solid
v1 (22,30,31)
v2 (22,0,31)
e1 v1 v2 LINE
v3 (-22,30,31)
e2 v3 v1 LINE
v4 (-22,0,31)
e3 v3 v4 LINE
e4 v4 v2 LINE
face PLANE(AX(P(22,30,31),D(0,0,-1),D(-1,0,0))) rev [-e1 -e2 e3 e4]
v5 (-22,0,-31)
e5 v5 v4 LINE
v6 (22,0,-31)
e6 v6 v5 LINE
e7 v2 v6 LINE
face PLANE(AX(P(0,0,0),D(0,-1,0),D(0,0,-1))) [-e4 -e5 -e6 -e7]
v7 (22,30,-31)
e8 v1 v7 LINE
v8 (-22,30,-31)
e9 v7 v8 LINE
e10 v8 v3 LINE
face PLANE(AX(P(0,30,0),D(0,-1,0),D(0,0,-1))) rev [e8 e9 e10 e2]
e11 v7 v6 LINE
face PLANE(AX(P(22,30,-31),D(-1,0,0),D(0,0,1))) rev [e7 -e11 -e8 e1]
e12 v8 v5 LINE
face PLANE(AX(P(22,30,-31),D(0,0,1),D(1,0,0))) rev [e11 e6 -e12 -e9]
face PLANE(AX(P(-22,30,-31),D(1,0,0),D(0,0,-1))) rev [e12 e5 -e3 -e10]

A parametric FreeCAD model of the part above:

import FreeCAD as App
import Part
import Sketcher
from FreeCAD import Vector
Q = App.Units.Quantity

doc = App.newDocument("Part")
body = doc.addObject("PartDesign::Body", "Body")

# Sketch on XZ plane
sketch1 = body.newObject("Sketcher::SketchObject", "Sketch")
sketch1.AttachmentSupport = (doc.getObject("XZ_Plane"), [""])
sketch1.MapMode = "FlatFace"
sketch1.addGeometry(Part.LineSegment(Vector(-22, -31, 0), Vector(-22, 31, 0)), False)
sketch1.addGeometry(Part.LineSegment(Vector(-22, 31, 0), Vector(22, 31, 0)), False)
sketch1.addGeometry(Part.LineSegment(Vector(22, 31, 0), Vector(22, -31, 0)), False)
sketch1.addGeometry(Part.LineSegment(Vector(22, -31, 0), Vector(-22, -31, 0)), False)
sketch1.addConstraint(Sketcher.Constraint("Coincident", 0, 2, 1, 1))
sketch1.addConstraint(Sketcher.Constraint("Coincident", 1, 2, 2, 1))
sketch1.addConstraint(Sketcher.Constraint("Coincident", 2, 2, 3, 1))
sketch1.addConstraint(Sketcher.Constraint("Coincident", 3, 2, 0, 1))
sketch1.addConstraint(Sketcher.Constraint("Vertical", 0))
sketch1.addConstraint(Sketcher.Constraint("Horizontal", 1))
sketch1.addConstraint(Sketcher.Constraint("Vertical", 2))
sketch1.addConstraint(Sketcher.Constraint("Horizontal", 3))
sketch1.addConstraint(Sketcher.Constraint("Symmetric", 0, 2, 2, 2, -1, 1))
sketch1.addConstraint(Sketcher.Constraint("DistanceX", 1, 1, 1, 2, Q("44 mm")))
sketch1.addConstraint(Sketcher.Constraint("DistanceY", 0, 1, 0, 2, Q("62 mm")))
pad1 = body.newObject("PartDesign::Pad", "Pad")
pad1.Profile = sketch1
pad1.Length = 30
pad1.Reversed = True

doc.recompute()
